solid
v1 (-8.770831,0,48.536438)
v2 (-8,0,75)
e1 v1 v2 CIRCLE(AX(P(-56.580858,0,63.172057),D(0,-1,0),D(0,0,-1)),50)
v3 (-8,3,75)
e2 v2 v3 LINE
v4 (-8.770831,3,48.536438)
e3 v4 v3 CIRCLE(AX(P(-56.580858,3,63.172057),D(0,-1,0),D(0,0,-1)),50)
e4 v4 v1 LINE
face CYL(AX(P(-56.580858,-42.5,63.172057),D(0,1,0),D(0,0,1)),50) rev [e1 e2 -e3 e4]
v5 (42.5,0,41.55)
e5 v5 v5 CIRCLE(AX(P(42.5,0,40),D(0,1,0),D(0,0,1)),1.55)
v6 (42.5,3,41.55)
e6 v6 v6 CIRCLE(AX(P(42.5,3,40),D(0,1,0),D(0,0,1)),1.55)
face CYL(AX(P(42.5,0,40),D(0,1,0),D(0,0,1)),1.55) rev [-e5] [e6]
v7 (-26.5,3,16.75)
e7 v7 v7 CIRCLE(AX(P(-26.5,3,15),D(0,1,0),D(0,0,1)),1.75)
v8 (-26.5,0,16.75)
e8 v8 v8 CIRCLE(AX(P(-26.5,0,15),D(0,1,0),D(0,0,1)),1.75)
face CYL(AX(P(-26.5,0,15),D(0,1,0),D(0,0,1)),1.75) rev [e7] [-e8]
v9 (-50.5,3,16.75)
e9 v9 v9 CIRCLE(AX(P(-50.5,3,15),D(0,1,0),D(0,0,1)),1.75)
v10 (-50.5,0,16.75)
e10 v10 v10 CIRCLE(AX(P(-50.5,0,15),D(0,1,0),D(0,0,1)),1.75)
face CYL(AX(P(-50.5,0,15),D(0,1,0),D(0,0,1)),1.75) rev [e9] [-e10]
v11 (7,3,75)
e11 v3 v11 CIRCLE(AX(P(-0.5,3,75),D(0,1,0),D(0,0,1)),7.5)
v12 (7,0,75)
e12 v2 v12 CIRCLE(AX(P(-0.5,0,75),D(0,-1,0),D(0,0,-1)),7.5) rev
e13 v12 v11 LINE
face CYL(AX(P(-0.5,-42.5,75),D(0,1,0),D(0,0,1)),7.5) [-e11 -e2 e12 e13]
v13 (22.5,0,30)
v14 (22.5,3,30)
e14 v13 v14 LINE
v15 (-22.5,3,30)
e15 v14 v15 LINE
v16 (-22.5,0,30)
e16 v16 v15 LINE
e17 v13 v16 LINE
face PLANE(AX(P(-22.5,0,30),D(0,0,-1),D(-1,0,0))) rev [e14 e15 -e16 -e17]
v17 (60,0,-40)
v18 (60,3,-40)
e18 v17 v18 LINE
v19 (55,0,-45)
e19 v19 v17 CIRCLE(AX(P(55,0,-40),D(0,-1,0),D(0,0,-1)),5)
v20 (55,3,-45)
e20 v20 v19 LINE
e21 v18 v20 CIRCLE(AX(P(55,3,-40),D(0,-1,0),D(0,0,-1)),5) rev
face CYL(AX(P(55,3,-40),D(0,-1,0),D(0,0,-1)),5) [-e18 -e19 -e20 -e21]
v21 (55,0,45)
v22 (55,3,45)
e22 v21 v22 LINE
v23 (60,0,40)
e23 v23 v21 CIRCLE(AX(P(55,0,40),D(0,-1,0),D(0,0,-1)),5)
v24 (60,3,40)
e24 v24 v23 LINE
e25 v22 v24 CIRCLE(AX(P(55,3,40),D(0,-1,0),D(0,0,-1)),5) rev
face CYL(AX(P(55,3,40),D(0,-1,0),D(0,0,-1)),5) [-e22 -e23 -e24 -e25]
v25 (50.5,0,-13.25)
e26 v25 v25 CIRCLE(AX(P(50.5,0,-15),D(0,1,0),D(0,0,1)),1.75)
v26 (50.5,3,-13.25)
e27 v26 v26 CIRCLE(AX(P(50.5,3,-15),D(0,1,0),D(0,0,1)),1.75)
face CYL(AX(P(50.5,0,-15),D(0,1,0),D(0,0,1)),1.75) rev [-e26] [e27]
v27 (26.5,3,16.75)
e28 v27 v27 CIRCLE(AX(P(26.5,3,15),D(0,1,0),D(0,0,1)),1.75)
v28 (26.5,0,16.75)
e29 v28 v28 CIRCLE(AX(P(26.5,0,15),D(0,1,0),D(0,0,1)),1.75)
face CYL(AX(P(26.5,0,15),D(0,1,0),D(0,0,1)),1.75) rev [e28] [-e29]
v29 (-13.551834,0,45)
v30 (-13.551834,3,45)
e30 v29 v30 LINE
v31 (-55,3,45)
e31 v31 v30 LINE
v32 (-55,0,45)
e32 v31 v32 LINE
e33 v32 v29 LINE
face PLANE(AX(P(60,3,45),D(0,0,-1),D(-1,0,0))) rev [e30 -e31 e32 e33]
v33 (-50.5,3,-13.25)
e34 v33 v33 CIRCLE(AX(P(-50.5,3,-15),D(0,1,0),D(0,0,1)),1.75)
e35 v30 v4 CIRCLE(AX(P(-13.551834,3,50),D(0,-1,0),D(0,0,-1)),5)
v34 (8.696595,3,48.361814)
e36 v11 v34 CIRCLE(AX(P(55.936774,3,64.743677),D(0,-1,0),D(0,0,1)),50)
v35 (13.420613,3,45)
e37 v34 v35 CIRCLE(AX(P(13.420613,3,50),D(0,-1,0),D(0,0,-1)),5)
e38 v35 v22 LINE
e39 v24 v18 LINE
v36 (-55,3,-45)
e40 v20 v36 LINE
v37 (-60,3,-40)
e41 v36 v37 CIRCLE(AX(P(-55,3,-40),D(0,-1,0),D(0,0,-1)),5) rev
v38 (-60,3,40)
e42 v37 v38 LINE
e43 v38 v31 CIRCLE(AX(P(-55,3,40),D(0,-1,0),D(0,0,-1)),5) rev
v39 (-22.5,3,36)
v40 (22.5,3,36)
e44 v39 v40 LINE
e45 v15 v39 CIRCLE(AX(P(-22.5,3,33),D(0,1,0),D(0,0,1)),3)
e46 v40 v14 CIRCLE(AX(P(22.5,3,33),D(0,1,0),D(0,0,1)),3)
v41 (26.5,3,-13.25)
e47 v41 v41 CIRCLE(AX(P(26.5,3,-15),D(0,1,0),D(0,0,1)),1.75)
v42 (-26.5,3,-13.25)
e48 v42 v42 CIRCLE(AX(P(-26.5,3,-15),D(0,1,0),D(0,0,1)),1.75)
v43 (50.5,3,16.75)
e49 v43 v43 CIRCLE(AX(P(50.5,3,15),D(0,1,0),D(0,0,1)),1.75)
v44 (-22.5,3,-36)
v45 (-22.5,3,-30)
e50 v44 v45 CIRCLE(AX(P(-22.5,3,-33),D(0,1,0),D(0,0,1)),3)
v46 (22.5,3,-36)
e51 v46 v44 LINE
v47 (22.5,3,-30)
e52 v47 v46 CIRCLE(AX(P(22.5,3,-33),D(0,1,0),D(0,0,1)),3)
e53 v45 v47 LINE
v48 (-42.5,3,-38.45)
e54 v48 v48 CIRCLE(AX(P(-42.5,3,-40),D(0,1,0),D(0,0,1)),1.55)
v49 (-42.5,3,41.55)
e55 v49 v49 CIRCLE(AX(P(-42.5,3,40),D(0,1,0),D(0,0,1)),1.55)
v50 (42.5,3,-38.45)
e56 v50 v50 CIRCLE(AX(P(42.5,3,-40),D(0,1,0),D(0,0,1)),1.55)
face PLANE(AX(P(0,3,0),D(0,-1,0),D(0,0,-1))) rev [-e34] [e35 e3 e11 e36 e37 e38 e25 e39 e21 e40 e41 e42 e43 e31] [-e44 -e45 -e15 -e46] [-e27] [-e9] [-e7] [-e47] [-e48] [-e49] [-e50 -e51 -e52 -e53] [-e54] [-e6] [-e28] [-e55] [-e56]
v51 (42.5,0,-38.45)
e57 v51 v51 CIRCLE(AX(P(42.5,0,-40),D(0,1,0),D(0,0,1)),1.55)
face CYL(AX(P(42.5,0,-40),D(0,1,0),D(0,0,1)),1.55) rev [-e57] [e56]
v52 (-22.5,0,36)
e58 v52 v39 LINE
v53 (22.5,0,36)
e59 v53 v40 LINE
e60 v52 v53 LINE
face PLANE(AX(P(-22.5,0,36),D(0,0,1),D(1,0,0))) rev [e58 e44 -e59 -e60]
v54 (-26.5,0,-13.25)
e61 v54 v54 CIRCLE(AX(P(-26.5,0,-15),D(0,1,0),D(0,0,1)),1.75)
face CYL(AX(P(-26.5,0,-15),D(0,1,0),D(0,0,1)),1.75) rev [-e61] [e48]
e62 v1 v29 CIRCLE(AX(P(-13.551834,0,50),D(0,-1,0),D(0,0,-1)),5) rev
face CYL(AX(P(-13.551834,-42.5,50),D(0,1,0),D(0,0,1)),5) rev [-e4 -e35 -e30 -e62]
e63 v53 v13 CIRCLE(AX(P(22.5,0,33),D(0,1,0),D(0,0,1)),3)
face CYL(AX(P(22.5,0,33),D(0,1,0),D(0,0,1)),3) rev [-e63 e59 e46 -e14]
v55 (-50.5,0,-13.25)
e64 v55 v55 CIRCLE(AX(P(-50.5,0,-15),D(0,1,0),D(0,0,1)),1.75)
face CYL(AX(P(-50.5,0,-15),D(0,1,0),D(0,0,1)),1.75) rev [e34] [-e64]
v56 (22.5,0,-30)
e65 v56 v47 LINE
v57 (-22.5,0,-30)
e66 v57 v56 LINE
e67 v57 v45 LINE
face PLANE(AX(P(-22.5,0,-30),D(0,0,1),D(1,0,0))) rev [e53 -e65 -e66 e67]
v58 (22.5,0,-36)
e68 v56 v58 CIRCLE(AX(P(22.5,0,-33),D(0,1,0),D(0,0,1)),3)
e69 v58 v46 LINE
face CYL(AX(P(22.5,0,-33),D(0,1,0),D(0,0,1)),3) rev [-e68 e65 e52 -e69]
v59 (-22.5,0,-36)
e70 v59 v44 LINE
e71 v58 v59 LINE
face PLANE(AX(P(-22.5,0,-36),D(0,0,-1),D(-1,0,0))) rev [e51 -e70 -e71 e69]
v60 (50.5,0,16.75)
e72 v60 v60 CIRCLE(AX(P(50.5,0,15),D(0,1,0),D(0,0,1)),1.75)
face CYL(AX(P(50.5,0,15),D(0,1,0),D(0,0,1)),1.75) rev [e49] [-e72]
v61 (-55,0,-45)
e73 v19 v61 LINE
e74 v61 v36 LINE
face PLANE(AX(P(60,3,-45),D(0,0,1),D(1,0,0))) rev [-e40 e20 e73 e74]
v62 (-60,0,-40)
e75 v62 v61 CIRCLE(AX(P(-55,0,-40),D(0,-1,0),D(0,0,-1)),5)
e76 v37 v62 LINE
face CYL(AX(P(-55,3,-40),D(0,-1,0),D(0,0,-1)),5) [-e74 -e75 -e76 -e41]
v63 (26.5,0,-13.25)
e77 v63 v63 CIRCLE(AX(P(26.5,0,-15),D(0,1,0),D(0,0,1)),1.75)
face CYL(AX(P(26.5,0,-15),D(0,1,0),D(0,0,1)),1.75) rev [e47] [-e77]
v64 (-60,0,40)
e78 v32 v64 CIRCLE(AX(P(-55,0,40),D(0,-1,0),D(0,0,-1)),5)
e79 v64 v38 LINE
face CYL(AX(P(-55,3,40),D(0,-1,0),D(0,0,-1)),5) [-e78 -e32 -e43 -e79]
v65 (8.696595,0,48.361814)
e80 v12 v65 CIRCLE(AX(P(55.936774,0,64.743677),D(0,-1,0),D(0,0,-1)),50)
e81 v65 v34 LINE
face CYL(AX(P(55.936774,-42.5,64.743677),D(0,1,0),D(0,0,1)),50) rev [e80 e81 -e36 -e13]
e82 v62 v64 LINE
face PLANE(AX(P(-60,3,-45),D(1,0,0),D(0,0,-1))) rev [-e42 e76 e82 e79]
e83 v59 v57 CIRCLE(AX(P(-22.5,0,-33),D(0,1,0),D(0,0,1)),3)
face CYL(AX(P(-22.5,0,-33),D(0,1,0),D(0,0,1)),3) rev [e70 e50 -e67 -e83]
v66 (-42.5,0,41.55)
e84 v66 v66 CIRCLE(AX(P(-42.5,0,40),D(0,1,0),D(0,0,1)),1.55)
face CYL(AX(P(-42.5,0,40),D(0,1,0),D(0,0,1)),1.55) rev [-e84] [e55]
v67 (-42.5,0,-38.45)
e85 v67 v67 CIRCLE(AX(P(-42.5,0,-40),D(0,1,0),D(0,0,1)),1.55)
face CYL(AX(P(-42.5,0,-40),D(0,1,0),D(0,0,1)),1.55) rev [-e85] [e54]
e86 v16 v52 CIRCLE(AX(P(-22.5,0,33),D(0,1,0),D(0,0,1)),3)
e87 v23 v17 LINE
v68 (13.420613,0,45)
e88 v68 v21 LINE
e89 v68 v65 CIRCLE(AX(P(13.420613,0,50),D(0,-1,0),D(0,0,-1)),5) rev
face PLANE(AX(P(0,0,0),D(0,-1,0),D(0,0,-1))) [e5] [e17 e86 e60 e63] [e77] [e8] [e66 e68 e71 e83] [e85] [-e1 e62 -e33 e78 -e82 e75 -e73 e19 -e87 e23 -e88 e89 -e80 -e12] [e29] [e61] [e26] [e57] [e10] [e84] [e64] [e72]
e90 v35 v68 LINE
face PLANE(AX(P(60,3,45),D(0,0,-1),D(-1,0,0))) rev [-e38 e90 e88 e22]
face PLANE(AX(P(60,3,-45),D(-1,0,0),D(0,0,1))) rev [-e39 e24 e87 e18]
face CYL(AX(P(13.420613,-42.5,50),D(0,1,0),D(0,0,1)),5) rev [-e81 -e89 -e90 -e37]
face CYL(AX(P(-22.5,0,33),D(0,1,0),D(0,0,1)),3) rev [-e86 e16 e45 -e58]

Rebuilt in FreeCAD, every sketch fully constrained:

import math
import FreeCAD as App
import Part
import Sketcher


def edges_at(feature, points):
    """Names of the edges that pass closest to the given points."""
    edges = feature.Shape.Edges
    near = lambda p: min(range(len(edges)), key=lambda i: edges[i].distToShape(Part.Vertex(*p))[0])
    return sorted({f"Edge{near(p) + 1}" for p in points})


def add_polygon(sketch, points):
    """Adds a closed chain of lines whose ends are joined by coincident constraints."""
    first, n = sketch.GeometryCount, len(points)
    for a, b in zip(points, points[1:] + points[:1]):
        sketch.addGeometry(Part.LineSegment(App.Vector(*a, 0), App.Vector(*b, 0)), False)
    for i in range(n):
        sketch.addConstraint(Sketcher.Constraint("Coincident", first + i, 2, first + (i + 1) % n, 1))

doc = App.newDocument("Part")
body = doc.addObject("PartDesign::Body", "Body")

# Sketch on XZ plane
sketch1 = body.newObject("Sketcher::SketchObject", "Sketch")
sketch1.AttachmentSupport = (doc.getObject("XZ_Plane"), [""])
sketch1.MapMode = "FlatFace"
add_polygon(sketch1, [(-60, -45), (-60, 45), (60, 45), (60, -45)])  # lines 0-3
sketch1.addConstraint(Sketcher.Constraint("Vertical", 0))
sketch1.addConstraint(Sketcher.Constraint("Horizontal", 1))
sketch1.addConstraint(Sketcher.Constraint("Vertical", 2))
sketch1.addConstraint(Sketcher.Constraint("Horizontal", 3))
sketch1.addConstraint(Sketcher.Constraint("Symmetric", 0, 2, 2, 2, -1, 1))
sketch1.addConstraint(Sketcher.Constraint("DistanceX", 1, 1, 1, 2, 120.0))
sketch1.addConstraint(Sketcher.Constraint("DistanceY", 0, 1, 0, 2, 90.0))
pad1 = body.newObject("PartDesign::Pad", "Pad")
pad1.Profile = sketch1
pad1.Length = 3
pad1.Reversed = True
doc.recompute()

fillet = body.newObject("PartDesign::Fillet", "Fillet")
fillet.Base = (pad1, edges_at(pad1, [
    (60, 1.5, 45),
    (-60, 1.5, 45),
    (-60, 1.5, -45),
    (60, 1.5, -45),
]))
fillet.Radius = 5

# Sketch on XZ plane
sketch2 = body.newObject("Sketcher::SketchObject", "Sketch001")
sketch2.AttachmentSupport = (doc.getObject("XZ_Plane"), [""])
sketch2.MapMode = "FlatFace"
sketch2.AttachmentOffset = App.Placement(App.Vector(0, 0, -3), App.Rotation())
sketch2.addGeometry(Part.LineSegment(App.Vector(22.5, -36, 0), App.Vector(-22.5, -36, 0)), False)
sketch2.addGeometry(Part.ArcOfCircle(Part.Circle(App.Vector(-22.5, -33, 0), App.Vector(0, 0, 1), 3), math.radians(90), math.radians(270)), False)
sketch2.addGeometry(Part.LineSegment(App.Vector(-22.5, -30, 0), App.Vector(22.5, -30, 0)), False)
sketch2.addGeometry(Part.ArcOfCircle(Part.Circle(App.Vector(22.5, -33, 0), App.Vector(0, 0, 1), 3), math.radians(-90), math.radians(90)), False)
sketch2.addGeometry(Part.LineSegment(App.Vector(22.5, 30, 0), App.Vector(-22.5, 30, 0)), False)
sketch2.addGeometry(Part.ArcOfCircle(Part.Circle(App.Vector(-22.5, 33, 0), App.Vector(0, 0, 1), 3), math.radians(90), math.radians(270)), False)
sketch2.addGeometry(Part.LineSegment(App.Vector(-22.5, 36, 0), App.Vector(22.5, 36, 0)), False)
sketch2.addGeometry(Part.ArcOfCircle(Part.Circle(App.Vector(22.5, 33, 0), App.Vector(0, 0, 1), 3), math.radians(-90), math.radians(90)), False)
sketch2.addConstraint(Sketcher.Constraint("Tangent", 0, 2, 1, 2))
sketch2.addConstraint(Sketcher.Constraint("Tangent", 1, 1, 2, 1))
sketch2.addConstraint(Sketcher.Constraint("Tangent", 2, 2, 3, 2))
sketch2.addConstraint(Sketcher.Constraint("Tangent", 3, 1, 0, 1))
sketch2.addConstraint(Sketcher.Constraint("Tangent", 4, 2, 5, 2))
sketch2.addConstraint(Sketcher.Constraint("Tangent", 5, 1, 6, 1))
sketch2.addConstraint(Sketcher.Constraint("Tangent", 6, 2, 7, 2))
sketch2.addConstraint(Sketcher.Constraint("Tangent", 7, 1, 4, 1))
sketch2.addConstraint(Sketcher.Constraint("Horizontal", 0))
sketch2.addConstraint(Sketcher.Constraint("Horizontal", 2))
sketch2.addConstraint(Sketcher.Constraint("Horizontal", 4))
sketch2.addConstraint(Sketcher.Constraint("Horizontal", 6))
sketch2.addConstraint(Sketcher.Constraint("Equal", 3, 5))
sketch2.addConstraint(Sketcher.Constraint("Symmetric", 3, 3, 5, 3, -1, 1))
sketch2.addConstraint(Sketcher.Constraint("Vertical", 1, 3, 5, 3))
sketch2.addConstraint(Sketcher.Constraint("Vertical", 3, 3, 7, 3))
sketch2.addConstraint(Sketcher.Constraint("Radius", 1, 3.0))
sketch2.addConstraint(Sketcher.Constraint("DistanceX", 0, 2, 0, 1, 45.0))
sketch2.addConstraint(Sketcher.Constraint("DistanceY", 1, 3, -1, 1, 33.0))
pocket1 = body.newObject("PartDesign::Pocket", "Pocket")
pocket1.Profile = sketch2
pocket1.Type = "ThroughAll"
pocket1.Reversed = True

# Sketch on XZ plane
sketch3 = body.newObject("Sketcher::SketchObject", "Sketch002")
sketch3.AttachmentSupport = (doc.getObject("XZ_Plane"), [""])
sketch3.MapMode = "FlatFace"
sketch3.AttachmentOffset = App.Placement(App.Vector(0, 0, -3), App.Rotation())
sketch3.addGeometry(Part.LineSegment(App.Vector(10, 45, 0), App.Vector(-10, 45, 0)), False)
sketch3.addGeometry(Part.ArcOfCircle(Part.Circle(App.Vector(-57, 63, 0), App.Vector(0, 0, 1), 50), math.radians(-21), math.radians(14)), False)
sketch3.addGeometry(Part.ArcOfCircle(Part.Circle(App.Vector(0, 75, 0), App.Vector(0, 0, 1), 8), math.radians(0), math.radians(180)), False)
sketch3.addGeometry(Part.ArcOfCircle(Part.Circle(App.Vector(56, 65, 0), App.Vector(0, 0, 1), 50), math.radians(168), math.radians(203)), False)
sketch3.addConstraint(Sketcher.Constraint("Coincident", 0, 2, 1, 1))
sketch3.addConstraint(Sketcher.Constraint("Coincident", 1, 2, 2, 2))
sketch3.addConstraint(Sketcher.Constraint("Coincident", 2, 1, 3, 1))
sketch3.addConstraint(Sketcher.Constraint("Coincident", 3, 2, 0, 1))
sketch3.addConstraint(Sketcher.Constraint("Horizontal", 0))
sketch3.addConstraint(Sketcher.Constraint("Equal", 1, 3))
sketch3.addConstraint(Sketcher.Constraint("Horizontal", 2, 3, 1, 2))
sketch3.addConstraint(Sketcher.Constraint("Horizontal", 1, 2, 2, 1))
sketch3.addConstraint(Sketcher.Constraint("Radius", 1, 50.0))
sketch3.addConstraint(Sketcher.Constraint("Radius", 2, 7.5))
sketch3.addConstraint(Sketcher.Constraint("DistanceX", 0, 2, 0, 1, 20.0))
sketch3.addConstraint(Sketcher.Constraint("DistanceY", -1, 1, 2, 3, 75.0))
sketch3.addConstraint(Sketcher.Constraint("DistanceX", 0, 2, -1, 1, 10.0))
sketch3.addConstraint(Sketcher.Constraint("DistanceY", -1, 1, 0, 2, 45.0))
sketch3.addConstraint(Sketcher.Constraint("DistanceX", 1, 2, -1, 1, 8.0))
pad2 = body.newObject("PartDesign::Pad", "Pad001")
pad2.Profile = sketch3
pad2.Length = 3

# Sketch on XZ plane
sketch4 = body.newObject("Sketcher::SketchObject", "Sketch003")
sketch4.AttachmentSupport = (doc.getObject("XZ_Plane"), [""])
sketch4.MapMode = "FlatFace"
sketch4.AttachmentOffset = App.Placement(App.Vector(0, 0, -3), App.Rotation())
sketch4.addGeometry(Part.Circle(App.Vector(42.5, 40, 0), App.Vector(0, 0, 1), 1.6), False)
sketch4.addGeometry(Part.Circle(App.Vector(42.5, -40, 0), App.Vector(0, 0, 1), 1.6), False)
sketch4.addGeometry(Part.Circle(App.Vector(-42.5, 40, 0), App.Vector(0, 0, 1), 1.6), False)
sketch4.addGeometry(Part.Circle(App.Vector(-42.5, -40, 0), App.Vector(0, 0, 1), 1.6), False)
sketch4.addGeometry(Part.Circle(App.Vector(-50.5, 15, 0), App.Vector(0, 0, 1), 1.8), False)
sketch4.addGeometry(Part.Circle(App.Vector(-26.5, 15, 0), App.Vector(0, 0, 1), 1.8), False)
sketch4.addGeometry(Part.Circle(App.Vector(-26.5, -15, 0), App.Vector(0, 0, 1), 1.8), False)
sketch4.addGeometry(Part.Circle(App.Vector(-50.5, -15, 0), App.Vector(0, 0, 1), 1.8), False)
sketch4.addGeometry(Part.Circle(App.Vector(50.5, 15, 0), App.Vector(0, 0, 1), 1.8), False)
sketch4.addGeometry(Part.Circle(App.Vector(50.5, -15, 0), App.Vector(0, 0, 1), 1.8), False)
sketch4.addGeometry(Part.Circle(App.Vector(26.5, 15, 0), App.Vector(0, 0, 1), 1.8), False)
sketch4.addGeometry(Part.Circle(App.Vector(26.5, -15, 0), App.Vector(0, 0, 1), 1.8), False)
sketch4.addConstraint(Sketcher.Constraint("Equal", 0, 1))
sketch4.addConstraint(Sketcher.Constraint("Equal", 1, 2))
sketch4.addConstraint(Sketcher.Constraint("Equal", 2, 3))
sketch4.addConstraint(Sketcher.Constraint("Equal", 4, 5))
sketch4.addConstraint(Sketcher.Constraint("Equal", 5, 6))
sketch4.addConstraint(Sketcher.Constraint("Equal", 6, 7))
sketch4.addConstraint(Sketcher.Constraint("Equal", 7, 8))
sketch4.addConstraint(Sketcher.Constraint("Equal", 8, 9))
sketch4.addConstraint(Sketcher.Constraint("Equal", 9, 10))
sketch4.addConstraint(Sketcher.Constraint("Equal", 10, 11))
sketch4.addConstraint(Sketcher.Constraint("Symmetric", 1, 3, 2, 3, -1, 1))
sketch4.addConstraint(Sketcher.Constraint("Symmetric", 0, 3, 3, 3, -1, 1))
sketch4.addConstraint(Sketcher.Constraint("Symmetric", 7, 3, 8, 3, -1, 1))
sketch4.addConstraint(Sketcher.Constraint("Symmetric", 4, 3, 9, 3, -1, 1))
sketch4.addConstraint(Sketcher.Constraint("Symmetric", 6, 3, 10, 3, -1, 1))
sketch4.addConstraint(Sketcher.Constraint("Symmetric", 5, 3, 11, 3, -1, 1))
sketch4.addConstraint(Sketcher.Constraint("Symmetric", 0, 3, 2, 3, -2))
sketch4.addConstraint(Sketcher.Constraint("Symmetric", 4, 3, 8, 3, -2))
sketch4.addConstraint(Sketcher.Constraint("Symmetric", 5, 3, 10, 3, -2))
sketch4.addConstraint(Sketcher.Constraint("Horizontal", 4, 3, 5, 3))
sketch4.addConstraint(Sketcher.Constraint("Diameter", 0, 3.1))
sketch4.addConstraint(Sketcher.Constraint("Diameter", 4, 3.5))
sketch4.addConstraint(Sketcher.Constraint("DistanceY", -1, 1, 0, 3, 40.0))
sketch4.addConstraint(Sketcher.Constraint("DistanceY", -1, 1, 4, 3, 15.0))
sketch4.addConstraint(Sketcher.Constraint("DistanceX", 2, 3, 0, 3, 85.0))
sketch4.addConstraint(Sketcher.Constraint("DistanceX", 4, 3, 2, 3, 8.0))
sketch4.addConstraint(Sketcher.Constraint("DistanceX", 4, 3, 5, 3, 24.0))
pocket2 = body.newObject("PartDesign::Pocket", "Pocket001")
pocket2.Profile = sketch4
pocket2.Type = "ThroughAll"
pocket2.Reversed = True
doc.recompute()

fillet2 = body.newObject("PartDesign::Fillet", "Fillet001")
fillet2.Base = (pocket2, edges_at(pocket2, [(10, 1.5, 45), (-10, 1.5, 45)]))
fillet2.Radius = 5

doc.recompute()
